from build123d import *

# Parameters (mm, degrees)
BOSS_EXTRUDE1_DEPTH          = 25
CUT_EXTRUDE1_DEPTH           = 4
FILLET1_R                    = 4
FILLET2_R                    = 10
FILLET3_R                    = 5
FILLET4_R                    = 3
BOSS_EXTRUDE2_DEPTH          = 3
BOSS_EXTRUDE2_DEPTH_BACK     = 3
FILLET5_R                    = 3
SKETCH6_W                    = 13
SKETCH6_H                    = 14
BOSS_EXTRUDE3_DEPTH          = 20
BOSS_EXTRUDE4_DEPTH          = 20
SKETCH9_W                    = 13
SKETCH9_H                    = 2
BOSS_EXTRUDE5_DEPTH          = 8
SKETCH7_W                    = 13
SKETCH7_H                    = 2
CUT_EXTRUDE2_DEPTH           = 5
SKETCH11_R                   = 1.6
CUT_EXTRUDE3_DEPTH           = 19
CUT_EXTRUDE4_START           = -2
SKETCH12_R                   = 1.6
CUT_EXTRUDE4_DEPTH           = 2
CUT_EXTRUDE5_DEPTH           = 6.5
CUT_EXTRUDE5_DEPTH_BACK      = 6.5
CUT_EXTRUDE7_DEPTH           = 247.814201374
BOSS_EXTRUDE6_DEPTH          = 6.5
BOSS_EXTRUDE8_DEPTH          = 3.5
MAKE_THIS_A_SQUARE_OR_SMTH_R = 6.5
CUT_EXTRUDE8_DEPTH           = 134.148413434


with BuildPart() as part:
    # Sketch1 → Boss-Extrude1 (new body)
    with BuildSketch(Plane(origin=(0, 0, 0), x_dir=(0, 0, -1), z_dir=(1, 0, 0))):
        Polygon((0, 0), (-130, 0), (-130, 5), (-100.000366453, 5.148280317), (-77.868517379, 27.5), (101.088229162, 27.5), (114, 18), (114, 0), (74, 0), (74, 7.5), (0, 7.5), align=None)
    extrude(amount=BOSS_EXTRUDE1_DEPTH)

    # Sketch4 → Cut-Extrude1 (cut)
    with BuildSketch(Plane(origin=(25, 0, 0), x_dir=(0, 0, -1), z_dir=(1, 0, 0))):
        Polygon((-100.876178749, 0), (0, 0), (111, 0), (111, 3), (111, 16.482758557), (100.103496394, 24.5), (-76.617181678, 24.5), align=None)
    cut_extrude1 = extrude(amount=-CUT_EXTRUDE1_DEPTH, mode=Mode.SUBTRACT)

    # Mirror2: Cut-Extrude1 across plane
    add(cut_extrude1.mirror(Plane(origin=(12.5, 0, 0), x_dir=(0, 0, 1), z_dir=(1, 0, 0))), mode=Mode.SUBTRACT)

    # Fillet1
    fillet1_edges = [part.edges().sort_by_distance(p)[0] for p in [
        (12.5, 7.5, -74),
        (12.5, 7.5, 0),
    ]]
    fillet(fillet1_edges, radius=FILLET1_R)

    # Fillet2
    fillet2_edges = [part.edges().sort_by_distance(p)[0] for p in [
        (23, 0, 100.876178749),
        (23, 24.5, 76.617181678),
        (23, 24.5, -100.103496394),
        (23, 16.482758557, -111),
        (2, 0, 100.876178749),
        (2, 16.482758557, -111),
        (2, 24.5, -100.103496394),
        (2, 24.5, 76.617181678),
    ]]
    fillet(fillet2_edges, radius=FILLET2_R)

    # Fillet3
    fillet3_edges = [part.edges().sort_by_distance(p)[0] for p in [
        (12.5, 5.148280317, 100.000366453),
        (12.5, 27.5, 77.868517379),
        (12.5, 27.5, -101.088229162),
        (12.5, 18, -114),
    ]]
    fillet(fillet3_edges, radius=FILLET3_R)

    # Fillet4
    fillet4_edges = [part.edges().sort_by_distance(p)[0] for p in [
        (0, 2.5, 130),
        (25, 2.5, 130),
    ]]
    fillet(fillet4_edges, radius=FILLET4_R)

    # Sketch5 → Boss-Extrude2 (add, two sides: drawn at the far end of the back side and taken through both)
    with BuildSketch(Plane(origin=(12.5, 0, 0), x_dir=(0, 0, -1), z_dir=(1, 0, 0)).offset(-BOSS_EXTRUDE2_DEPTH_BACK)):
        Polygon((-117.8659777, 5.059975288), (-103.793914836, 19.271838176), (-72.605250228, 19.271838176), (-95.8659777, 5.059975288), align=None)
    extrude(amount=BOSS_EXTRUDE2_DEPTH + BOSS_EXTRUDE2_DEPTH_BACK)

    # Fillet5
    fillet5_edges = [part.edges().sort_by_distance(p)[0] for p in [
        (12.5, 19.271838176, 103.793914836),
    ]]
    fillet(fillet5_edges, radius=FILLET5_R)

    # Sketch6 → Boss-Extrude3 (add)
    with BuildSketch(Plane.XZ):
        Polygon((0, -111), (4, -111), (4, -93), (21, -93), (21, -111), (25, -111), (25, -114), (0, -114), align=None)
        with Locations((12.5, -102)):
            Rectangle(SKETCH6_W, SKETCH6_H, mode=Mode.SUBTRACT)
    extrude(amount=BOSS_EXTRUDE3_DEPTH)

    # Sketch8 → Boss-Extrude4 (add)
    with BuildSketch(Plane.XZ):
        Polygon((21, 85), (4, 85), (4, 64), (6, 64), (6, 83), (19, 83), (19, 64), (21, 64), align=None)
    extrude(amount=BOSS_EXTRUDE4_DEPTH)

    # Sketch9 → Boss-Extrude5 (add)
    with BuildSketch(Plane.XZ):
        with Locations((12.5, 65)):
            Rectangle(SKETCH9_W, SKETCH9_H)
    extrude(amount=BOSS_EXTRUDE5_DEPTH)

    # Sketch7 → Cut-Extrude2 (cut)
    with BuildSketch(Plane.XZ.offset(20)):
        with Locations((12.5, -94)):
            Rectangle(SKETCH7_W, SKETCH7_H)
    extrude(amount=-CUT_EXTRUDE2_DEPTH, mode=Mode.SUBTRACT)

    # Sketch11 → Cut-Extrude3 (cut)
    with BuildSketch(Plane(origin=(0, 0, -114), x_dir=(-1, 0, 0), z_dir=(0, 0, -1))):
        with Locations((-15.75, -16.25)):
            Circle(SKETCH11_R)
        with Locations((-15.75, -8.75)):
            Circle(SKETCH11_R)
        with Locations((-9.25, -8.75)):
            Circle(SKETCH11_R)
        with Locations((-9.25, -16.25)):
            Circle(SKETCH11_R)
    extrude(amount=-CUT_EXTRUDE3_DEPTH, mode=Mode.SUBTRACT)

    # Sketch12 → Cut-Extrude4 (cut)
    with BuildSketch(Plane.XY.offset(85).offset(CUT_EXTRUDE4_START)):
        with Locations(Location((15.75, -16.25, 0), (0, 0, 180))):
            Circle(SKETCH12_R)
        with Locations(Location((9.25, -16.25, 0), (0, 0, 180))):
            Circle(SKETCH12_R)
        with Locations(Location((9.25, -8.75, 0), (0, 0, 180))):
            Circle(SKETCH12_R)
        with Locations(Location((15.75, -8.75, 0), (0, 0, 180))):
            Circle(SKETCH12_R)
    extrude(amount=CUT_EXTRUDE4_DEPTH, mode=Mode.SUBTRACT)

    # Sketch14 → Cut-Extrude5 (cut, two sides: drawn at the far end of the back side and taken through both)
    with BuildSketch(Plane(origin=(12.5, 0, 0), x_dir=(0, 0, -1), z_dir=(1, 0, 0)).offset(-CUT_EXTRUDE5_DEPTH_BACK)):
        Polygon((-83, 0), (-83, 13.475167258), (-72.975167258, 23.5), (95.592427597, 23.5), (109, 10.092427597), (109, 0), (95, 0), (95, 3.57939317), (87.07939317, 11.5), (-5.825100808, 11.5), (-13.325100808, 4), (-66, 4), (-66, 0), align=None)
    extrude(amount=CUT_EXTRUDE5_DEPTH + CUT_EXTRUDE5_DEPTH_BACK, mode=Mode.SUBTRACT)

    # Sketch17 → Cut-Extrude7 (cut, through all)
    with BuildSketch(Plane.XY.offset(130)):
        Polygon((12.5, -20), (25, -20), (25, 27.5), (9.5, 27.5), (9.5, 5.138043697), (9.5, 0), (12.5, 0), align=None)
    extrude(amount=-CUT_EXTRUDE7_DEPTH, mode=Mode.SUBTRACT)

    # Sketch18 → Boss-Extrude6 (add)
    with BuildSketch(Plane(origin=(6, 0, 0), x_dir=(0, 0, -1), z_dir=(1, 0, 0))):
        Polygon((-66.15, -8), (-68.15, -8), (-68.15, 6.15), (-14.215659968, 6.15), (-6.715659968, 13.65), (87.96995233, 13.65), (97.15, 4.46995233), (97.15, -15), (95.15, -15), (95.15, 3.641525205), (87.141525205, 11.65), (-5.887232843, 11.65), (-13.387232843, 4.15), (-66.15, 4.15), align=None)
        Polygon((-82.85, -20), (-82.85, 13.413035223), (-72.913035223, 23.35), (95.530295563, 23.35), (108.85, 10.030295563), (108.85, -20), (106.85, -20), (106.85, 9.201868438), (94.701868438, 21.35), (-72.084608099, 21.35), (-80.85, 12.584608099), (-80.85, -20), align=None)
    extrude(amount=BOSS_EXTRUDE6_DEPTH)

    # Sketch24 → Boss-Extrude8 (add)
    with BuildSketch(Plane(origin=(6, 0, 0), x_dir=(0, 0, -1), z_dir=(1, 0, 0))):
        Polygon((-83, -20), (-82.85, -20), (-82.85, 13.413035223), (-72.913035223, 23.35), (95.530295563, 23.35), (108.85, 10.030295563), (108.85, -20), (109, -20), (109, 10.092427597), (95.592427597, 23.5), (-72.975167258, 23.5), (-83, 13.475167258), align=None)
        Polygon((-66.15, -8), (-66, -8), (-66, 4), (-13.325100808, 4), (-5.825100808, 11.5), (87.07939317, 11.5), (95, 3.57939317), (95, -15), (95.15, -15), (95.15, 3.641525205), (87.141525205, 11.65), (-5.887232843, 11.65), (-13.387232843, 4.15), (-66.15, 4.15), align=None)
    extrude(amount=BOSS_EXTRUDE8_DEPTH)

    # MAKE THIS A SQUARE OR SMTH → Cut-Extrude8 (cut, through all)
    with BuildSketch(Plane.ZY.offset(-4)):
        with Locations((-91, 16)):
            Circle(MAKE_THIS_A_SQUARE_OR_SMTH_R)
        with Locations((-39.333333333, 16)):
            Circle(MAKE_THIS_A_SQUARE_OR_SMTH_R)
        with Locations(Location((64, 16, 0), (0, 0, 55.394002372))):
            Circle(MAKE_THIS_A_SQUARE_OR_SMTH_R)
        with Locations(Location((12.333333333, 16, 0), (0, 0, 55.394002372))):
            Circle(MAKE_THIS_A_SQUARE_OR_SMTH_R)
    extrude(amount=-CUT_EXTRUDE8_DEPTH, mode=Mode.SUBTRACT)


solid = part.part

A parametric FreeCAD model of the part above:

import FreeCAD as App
import Part
import Sketcher
from FreeCAD import Vector
Q = App.Units.Quantity


def edges_at(feature, points):
    """Names of the edges that pass closest to the given points."""
    edges = feature.Shape.Edges
    near = lambda p: min(range(len(edges)), key=lambda i: edges[i].distToShape(Part.Vertex(*p))[0])
    return sorted({f"Edge{near(p) + 1}" for p in points})

doc = App.newDocument("Part")
body = doc.addObject("PartDesign::Body", "Body")

# Sketch on YZ plane
sketch1 = body.newObject("Sketcher::SketchObject", "Sketch")
sketch1.AttachmentSupport = (doc.getObject("YZ_Plane"), [""])
sketch1.MapMode = "FlatFace"
sketch1.addGeometry([
    Part.LineSegment(Vector(0, 130, 0), Vector(0, 0, 0)),  # 0
    Part.LineSegment(Vector(0, 0, 0), Vector(8, 0, 0)),  # 1
    Part.LineSegment(Vector(8, 0, 0), Vector(8, -74, 0)),  # 2
    Part.LineSegment(Vector(8, -74, 0), Vector(0, -74, 0)),  # 3
    Part.LineSegment(Vector(0, -74, 0), Vector(0, -114, 0)),  # 4
    Part.LineSegment(Vector(0, -114, 0), Vector(18, -114, 0)),  # 5
    Part.LineSegment(Vector(18, -114, 0), Vector(28, -101, 0)),  # 6
    Part.LineSegment(Vector(28, -101, 0), Vector(28, 78, 0)),  # 7
    Part.LineSegment(Vector(28, 78, 0), Vector(5, 100, 0)),  # 8
    Part.LineSegment(Vector(5, 100, 0), Vector(5, 130, 0)),  # 9
    Part.LineSegment(Vector(5, 130, 0), Vector(0, 130, 0)),  # 10
], False)
sketch1.addConstraint([
    Sketcher.Constraint("Coincident", 0, 2, 1, 1),
    Sketcher.Constraint("Coincident", 1, 2, 2, 1),
    Sketcher.Constraint("Coincident", 2, 2, 3, 1),
    Sketcher.Constraint("Coincident", 3, 2, 4, 1),
    Sketcher.Constraint("Coincident", 4, 2, 5, 1),
    Sketcher.Constraint("Coincident", 5, 2, 6, 1),
    Sketcher.Constraint("Coincident", 6, 2, 7, 1),
    Sketcher.Constraint("Coincident", 7, 2, 8, 1),
    Sketcher.Constraint("Coincident", 8, 2, 9, 1),
    Sketcher.Constraint("Coincident", 9, 2, 10, 1),
    Sketcher.Constraint("Coincident", 10, 2, 0, 1),
    Sketcher.Constraint("Vertical", 0),
    Sketcher.Constraint("Horizontal", 1),
    Sketcher.Constraint("Vertical", 2),
    Sketcher.Constraint("Horizontal", 3),
    Sketcher.Constraint("Vertical", 4),
    Sketcher.Constraint("Horizontal", 5),
    Sketcher.Constraint("Vertical", 7),
    Sketcher.Constraint("Horizontal", 10),
    Sketcher.Constraint("Coincident", 0, 2, -1, 1),
    Sketcher.Constraint("PointOnObject", 3, 2, -2),
    Sketcher.Constraint("DistanceX", 5, 1, 5, 2, Q("18 mm")),
    Sketcher.Constraint("DistanceX", 10, 2, 10, 1, Q("5 mm")),
    Sketcher.Constraint("DistanceY", 0, 2, 0, 1, Q("130 mm")),
    Sketcher.Constraint("DistanceY", 2, 2, 2, 1, Q("74 mm")),
    Sketcher.Constraint("DistanceY", 4, 2, 4, 1, Q("40 mm")),
    Sketcher.Constraint("Distance", 9, Q("30 mm")),
    Sketcher.Constraint("DistanceX", 1, 1, 1, 2, Q("7.5 mm")),
    Sketcher.Constraint("DistanceX", 2, 2, 6, 2, Q("20 mm")),
    Sketcher.Constraint("Distance", 6, Q("16.030091 mm")),
    Sketcher.Constraint("DistanceY", 7, 1, 7, 2, Q("178.956747 mm")),
    Sketcher.Constraint("DistanceX", -1, 1, 8, 2, Q("5.14828 mm")),
])
pad1 = body.newObject("PartDesign::Pad", "Pad")
pad1.Profile = sketch1
pad1.Length = 25

# Sketch on YZ plane
sketch2 = body.newObject("Sketcher::SketchObject", "Sketch001")
sketch2.AttachmentSupport = (doc.getObject("YZ_Plane"), [""])
sketch2.MapMode = "FlatFace"
sketch2.AttachmentOffset = App.Placement(Vector(0, 0, 25), App.Rotation())
sketch2.addGeometry([
    Part.LineSegment(Vector(0, 101, 0), Vector(0, -111, 0)),  # 0
    Part.LineSegment(Vector(0, -111, 0), Vector(16, -111, 0)),  # 1
    Part.LineSegment(Vector(16, -111, 0), Vector(24, -100, 0)),  # 2
    Part.LineSegment(Vector(24, -100, 0), Vector(24, 77, 0)),  # 3
    Part.LineSegment(Vector(24, 77, 0), Vector(0, 101, 0)),  # 4
], False)
sketch2.addConstraint([
    Sketcher.Constraint("Coincident", 0, 2, 1, 1),
    Sketcher.Constraint("Coincident", 1, 2, 2, 1),
    Sketcher.Constraint("Coincident", 2, 2, 3, 1),
    Sketcher.Constraint("Coincident", 3, 2, 4, 1),
    Sketcher.Constraint("Coincident", 4, 2, 0, 1),
    Sketcher.Constraint("Vertical", 0),
    Sketcher.Constraint("Horizontal", 1),
    Sketcher.Constraint("Vertical", 3),
    Sketcher.Constraint("PointOnObject", 0, 2, -2),
    Sketcher.Constraint("DistanceY", 0, 2, -1, 1, Q("111 mm")),
    Sketcher.Constraint("DistanceX", -1, 1, 2, 2, Q("24.5 mm")),
    Sketcher.Constraint("DistanceX", 1, 1, 1, 2, Q("16.482759 mm")),
    Sketcher.Constraint("DistanceY", 0, 2, 0, 1, Q("211.876179 mm")),
    Sketcher.Constraint("DistanceY", 3, 1, 3, 2, Q("176.720678 mm")),
    Sketcher.Constraint("Distance", 4, Q("34.478239 mm")),
])
pocket1 = body.newObject("PartDesign::Pocket", "Pocket")
pocket1.Profile = sketch2
pocket1.Length = 4
doc.recompute()

datumplane = body.newObject("PartDesign::Plane", "DatumPlane")
datumplane.AttachmentSupport = (doc.getObject("YZ_Plane"), [""])
datumplane.MapMode = "FlatFace"
datumplane.AttachmentOffset = App.Placement(Vector(0, 0, 12.5), App.Rotation())
mirrored = body.newObject("PartDesign::Mirrored", "Mirrored")
mirrored.Originals = [pocket1]
mirrored.MirrorPlane = (datumplane, [""])
body.Tip = mirrored
doc.recompute()

fillet = body.newObject("PartDesign::Fillet", "Fillet")
fillet.Base = (mirrored, edges_at(mirrored, [(12.5, 7.5, -74), (12.5, 7.5, 0)]))
fillet.Radius = 4
doc.recompute()

fillet2 = body.newObject("PartDesign::Fillet", "Fillet001")
fillet2.Base = (fillet, edges_at(fillet, [
    (23, 0, 100.876),
    (23, 24.5, 76.617),
    (23, 24.5, -100.103),
    (23, 16.483, -111),
    (2, 0, 100.876),
    (2, 16.483, -111),
    (2, 24.5, -100.103),
    (2, 24.5, 76.617),
]))
fillet2.Radius = 10
doc.recompute()

fillet3 = body.newObject("PartDesign::Fillet", "Fillet002")
fillet3.Base = (fillet2, edges_at(fillet2, [
    (12.5, 5.148, 100),
    (12.5, 27.5, 77.869),
    (12.5, 27.5, -101.088),
    (12.5, 18, -114),
]))
fillet3.Radius = 5
doc.recompute()

fillet4 = body.newObject("PartDesign::Fillet", "Fillet003")
fillet4.Base = (fillet3, edges_at(fillet3, [(0, 2.5, 130), (25, 2.5, 130)]))
fillet4.Radius = 3

# Sketch on YZ plane
sketch3 = body.newObject("Sketcher::SketchObject", "Sketch002")
sketch3.AttachmentSupport = (doc.getObject("YZ_Plane"), [""])
sketch3.MapMode = "FlatFace"
sketch3.AttachmentOffset = App.Placement(Vector(0, 0, 12.5), App.Rotation())
sketch3.addGeometry([
    Part.LineSegment(Vector(19, 104, 0), Vector(5, 118, 0)),
    Part.LineSegment(Vector(5, 118, 0), Vector(5, 96, 0)),
    Part.LineSegment(Vector(5, 96, 0), Vector(19, 73, 0)),
    Part.LineSegment(Vector(19, 73, 0), Vector(19, 104, 0)),
], False)
sketch3.addConstraint([
    Sketcher.Constraint("Coincident", 0, 2, 1, 1),
    Sketcher.Constraint("Coincident", 1, 2, 2, 1),
    Sketcher.Constraint("Coincident", 2, 2, 3, 1),
    Sketcher.Constraint("Coincident", 3, 2, 0, 1),
    Sketcher.Constraint("Vertical", 1),
    Sketcher.Constraint("Vertical", 3),
    Sketcher.Constraint("DistanceY", 1, 2, 1, 1, Q("22 mm")),
    Sketcher.Constraint("Distance", 0, Q("20 mm")),
    Sketcher.Constraint("DistanceY", 3, 1, 3, 2, Q("31.188665 mm")),
    Sketcher.Constraint("DistanceX", -1, 1, 2, 2, Q("19.271838 mm")),
    Sketcher.Constraint("DistanceY", -1, 1, 2, 2, Q("72.60525 mm")),
    Sketcher.Constraint("Distance", 2, Q("27.258732 mm")),
])
pad2 = body.newObject("PartDesign::Pad", "Pad001")
pad2.Profile = sketch3
pad2.Type = "TwoLengths"
pad2.Length = 3
pad2.Length2 = 3
doc.recompute()

fillet5 = body.newObject("PartDesign::Fillet", "Fillet004")
fillet5.Base = (pad2, edges_at(pad2, [(12.5, 19.272, 103.794)]))
fillet5.Radius = 3

# Sketch on XZ plane
sketch4 = body.newObject("Sketcher::SketchObject", "Sketch003")
sketch4.AttachmentSupport = (doc.getObject("XZ_Plane"), [""])
sketch4.MapMode = "FlatFace"
sketch4.addGeometry([
    Part.LineSegment(Vector(4, -111, 0), Vector(0, -111, 0)),  # 0
    Part.LineSegment(Vector(0, -111, 0), Vector(0, -114, 0)),  # 1
    Part.LineSegment(Vector(0, -114, 0), Vector(25, -114, 0)),  # 2
    Part.LineSegment(Vector(25, -114, 0), Vector(25, -111, 0)),  # 3
    Part.LineSegment(Vector(25, -111, 0), Vector(21, -111, 0)),  # 4
    Part.LineSegment(Vector(21, -111, 0), Vector(21, -93, 0)),  # 5
    Part.LineSegment(Vector(21, -93, 0), Vector(4, -93, 0)),  # 6
    Part.LineSegment(Vector(4, -93, 0), Vector(4, -111, 0)),  # 7
    Part.LineSegment(Vector(6, -109, 0), Vector(6, -95, 0)),  # 8
    Part.LineSegment(Vector(6, -95, 0), Vector(19, -95, 0)),  # 9
    Part.LineSegment(Vector(19, -95, 0), Vector(19, -109, 0)),  # 10
    Part.LineSegment(Vector(19, -109, 0), Vector(6, -109, 0)),  # 11
], False)
sketch4.addConstraint([
    Sketcher.Constraint("Coincident", 0, 2, 1, 1),
    Sketcher.Constraint("Coincident", 1, 2, 2, 1),
    Sketcher.Constraint("Coincident", 2, 2, 3, 1),
    Sketcher.Constraint("Coincident", 3, 2, 4, 1),
    Sketcher.Constraint("Coincident", 4, 2, 5, 1),
    Sketcher.Constraint("Coincident", 5, 2, 6, 1),
    Sketcher.Constraint("Coincident", 6, 2, 7, 1),
    Sketcher.Constraint("Coincident", 7, 2, 0, 1),
    Sketcher.Constraint("Coincident", 8, 2, 9, 1),
    Sketcher.Constraint("Coincident", 9, 2, 10, 1),
    Sketcher.Constraint("Coincident", 10, 2, 11, 1),
    Sketcher.Constraint("Coincident", 11, 2, 8, 1),
    Sketcher.Constraint("Horizontal", 0),
    Sketcher.Constraint("Vertical", 1),
    Sketcher.Constraint("Horizontal", 2),
    Sketcher.Constraint("Vertical", 3),
    Sketcher.Constraint("Horizontal", 4),
    Sketcher.Constraint("Vertical", 5),
    Sketcher.Constraint("Horizontal", 6),
    Sketcher.Constraint("Vertical", 7),
    Sketcher.Constraint("Vertical", 8),
    Sketcher.Constraint("Horizontal", 9),
    Sketcher.Constraint("Vertical", 10),
    Sketcher.Constraint("Horizontal", 11),
    Sketcher.Constraint("PointOnObject", 0, 2, -2),
    Sketcher.Constraint("Horizontal", 0, 2, 3, 2),
    Sketcher.Constraint("Equal", 0, 4),
    Sketcher.Constraint("DistanceX", 0, 2, 0, 1, Q("4 mm")),
    Sketcher.Constraint("DistanceX", 2, 1, 2, 2, Q("25 mm")),
    Sketcher.Constraint("DistanceX", 9, 1, 9, 2, Q("13 mm")),
    Sketcher.Constraint("DistanceY", 1, 2, 1, 1, Q("3 mm")),
    Sketcher.Constraint("DistanceY", 5, 1, 5, 2, Q("18 mm")),
    Sketcher.Constraint("DistanceY", 8, 1, 8, 2, Q("14 mm")),
    Sketcher.Constraint("DistanceY", 0, 2, -1, 1, Q("111 mm")),
    Sketcher.Constraint("DistanceX", -1, 1, 8, 2, Q("6 mm")),
    Sketcher.Constraint("DistanceY", 8, 2, -1, 1, Q("95 mm")),
])
pad3 = body.newObject("PartDesign::Pad", "Pad002")
pad3.Profile = sketch4
pad3.Length = 20

# Sketch on XZ plane
sketch5 = body.newObject("Sketcher::SketchObject", "Sketch004")
sketch5.AttachmentSupport = (doc.getObject("XZ_Plane"), [""])
sketch5.MapMode = "FlatFace"
sketch5.addGeometry([
    Part.LineSegment(Vector(21, 85, 0), Vector(4, 85, 0)),  # 0
    Part.LineSegment(Vector(4, 85, 0), Vector(4, 64, 0)),  # 1
    Part.LineSegment(Vector(4, 64, 0), Vector(6, 64, 0)),  # 2
    Part.LineSegment(Vector(6, 64, 0), Vector(6, 83, 0)),  # 3
    Part.LineSegment(Vector(6, 83, 0), Vector(19, 83, 0)),  # 4
    Part.LineSegment(Vector(19, 83, 0), Vector(19, 64, 0)),  # 5
    Part.LineSegment(Vector(19, 64, 0), Vector(21, 64, 0)),  # 6
    Part.LineSegment(Vector(21, 64, 0), Vector(21, 85, 0)),  # 7
], False)
sketch5.addConstraint([
    Sketcher.Constraint("Coincident", 0, 2, 1, 1),
    Sketcher.Constraint("Coincident", 1, 2, 2, 1),
    Sketcher.Constraint("Coincident", 2, 2, 3, 1),
    Sketcher.Constraint("Coincident", 3, 2, 4, 1),
    Sketcher.Constraint("Coincident", 4, 2, 5, 1),
    Sketcher.Constraint("Coincident", 5, 2, 6, 1),
    Sketcher.Constraint("Coincident", 6, 2, 7, 1),
    Sketcher.Constraint("Coincident", 7, 2, 0, 1),
    Sketcher.Constraint("Horizontal", 0),
    Sketcher.Constraint("Vertical", 1),
    Sketcher.Constraint("Horizontal", 2),
    Sketcher.Constraint("Vertical", 3),
    Sketcher.Constraint("Horizontal", 4),
    Sketcher.Constraint("Vertical", 5),
    Sketcher.Constraint("Horizontal", 6),
    Sketcher.Constraint("Vertical", 7),
    Sketcher.Constraint("Horizontal", 2, 2, 5, 2),
    Sketcher.Constraint("Equal", 2, 6),
    Sketcher.Constraint("DistanceX", 0, 2, 0, 1, Q("17 mm")),
    Sketcher.Constraint("DistanceX", 2, 1, 2, 2, Q("2 mm")),
    Sketcher.Constraint("DistanceY", 1, 2, 1, 1, Q("21 mm")),
    Sketcher.Constraint("DistanceY", 3, 1, 3, 2, Q("19 mm")),
    Sketcher.Constraint("DistanceX", -1, 1, 0, 2, Q("4 mm")),
    Sketcher.Constraint("DistanceY", -1, 1, 0, 2, Q("85 mm")),
])
pad4 = body.newObject("PartDesign::Pad", "Pad003")
pad4.Profile = sketch5
pad4.Length = 20

# Sketch on XZ plane
sketch6 = body.newObject("Sketcher::SketchObject", "Sketch005")
sketch6.AttachmentSupport = (doc.getObject("XZ_Plane"), [""])
sketch6.MapMode = "FlatFace"
sketch6.addGeometry([
    Part.LineSegment(Vector(6, 66, 0), Vector(6, 64, 0)),
    Part.LineSegment(Vector(6, 64, 0), Vector(19, 64, 0)),
    Part.LineSegment(Vector(19, 64, 0), Vector(19, 66, 0)),
    Part.LineSegment(Vector(19, 66, 0), Vector(6, 66, 0)),
], False)
sketch6.addConstraint([
    Sketcher.Constraint("Coincident", 0, 2, 1, 1),
    Sketcher.Constraint("Coincident", 1, 2, 2, 1),
    Sketcher.Constraint("Coincident", 2, 2, 3, 1),
    Sketcher.Constraint("Coincident", 3, 2, 0, 1),
    Sketcher.Constraint("Vertical", 0),
    Sketcher.Constraint("Horizontal", 1),
    Sketcher.Constraint("Vertical", 2),
    Sketcher.Constraint("Horizontal", 3),
    Sketcher.Constraint("DistanceX", 1, 1, 1, 2, Q("13 mm")),
    Sketcher.Constraint("DistanceY", 0, 2, 0, 1, Q("2 mm")),
    Sketcher.Constraint("DistanceX", -1, 1, 0, 2, Q("6 mm")),
    Sketcher.Constraint("DistanceY", -1, 1, 0, 2, Q("64 mm")),
])
pad5 = body.newObject("PartDesign::Pad", "Pad004")
pad5.Profile = sketch6
pad5.Length = 8

# Sketch on XZ plane
sketch7 = body.newObject("Sketcher::SketchObject", "Sketch006")
sketch7.AttachmentSupport = (doc.getObject("XZ_Plane"), [""])
sketch7.MapMode = "FlatFace"
sketch7.AttachmentOffset = App.Placement(Vector(0, 0, 20), App.Rotation())
sketch7.addGeometry([
    Part.LineSegment(Vector(6, -93, 0), Vector(6, -95, 0)),
    Part.LineSegment(Vector(6, -95, 0), Vector(19, -95, 0)),
    Part.LineSegment(Vector(19, -95, 0), Vector(19, -93, 0)),
    Part.LineSegment(Vector(19, -93, 0), Vector(6, -93, 0)),
], False)
sketch7.addConstraint([
    Sketcher.Constraint("Coincident", 0, 2, 1, 1),
    Sketcher.Constraint("Coincident", 1, 2, 2, 1),
    Sketcher.Constraint("Coincident", 2, 2, 3, 1),
    Sketcher.Constraint("Coincident", 3, 2, 0, 1),
    Sketcher.Constraint("Vertical", 0),
    Sketcher.Constraint("Horizontal", 1),
    Sketcher.Constraint("Vertical", 2),
    Sketcher.Constraint("Horizontal", 3),
    Sketcher.Constraint("DistanceX", 1, 1, 1, 2, Q("13 mm")),
    Sketcher.Constraint("DistanceY", 0, 2, 0, 1, Q("2 mm")),
    Sketcher.Constraint("DistanceX", -1, 1, 0, 2, Q("6 mm")),
    Sketcher.Constraint("DistanceY", 0, 2, -1, 1, Q("95 mm")),
])
pocket2 = body.newObject("PartDesign::Pocket", "Pocket001")
pocket2.Profile = sketch7
pocket2.Length = 5

# Sketch on XY plane
sketch8 = body.newObject("Sketcher::SketchObject", "Sketch007")
sketch8.AttachmentSupport = (doc.getObject("XY_Plane"), [""])
sketch8.MapMode = "FlatFace"
sketch8.AttachmentOffset = App.Placement(Vector(0, 0, -114), App.Rotation())
sketch8.addGeometry([
    Part.Circle(Vector(15.8, -16.2, 0), Vector(0, 0, 1), 1.6),
    Part.Circle(Vector(15.8, -8.8, 0), Vector(0, 0, 1), 1.6),
    Part.Circle(Vector(9.2, -8.8, 0), Vector(0, 0, 1), 1.6),
    Part.Circle(Vector(9.2, -16.2, 0), Vector(0, 0, 1), 1.6),
], False)
sketch8.addConstraint([
    Sketcher.Constraint("Equal", 0, 1),
    Sketcher.Constraint("Equal", 1, 2),
    Sketcher.Constraint("Equal", 2, 3),
    Sketcher.Constraint("Horizontal", 1, 3, 2, 3),
    Sketcher.Constraint("Horizontal", 0, 3, 3, 3),
    Sketcher.Constraint("Vertical", 0, 3, 1, 3),
    Sketcher.Constraint("Vertical", 2, 3, 3, 3),
    Sketcher.Constraint("Diameter", 0, Q("3.2 mm")),
    Sketcher.Constraint("DistanceY", 0, 3, 1, 3, Q("7.5 mm")),
    Sketcher.Constraint("DistanceX", 2, 3, 1, 3, Q("6.5 mm")),
    Sketcher.Constraint("DistanceX", -1, 1, 0, 3, Q("15.75 mm")),
    Sketcher.Constraint("DistanceY", 0, 3, -1, 1, Q("16.25 mm")),
])
pocket3 = body.newObject("PartDesign::Pocket", "Pocket002")
pocket3.Profile = sketch8
pocket3.Length = 19
pocket3.Reversed = True

# Sketch on XY plane
sketch9 = body.newObject("Sketcher::SketchObject", "Sketch008")
sketch9.AttachmentSupport = (doc.getObject("XY_Plane"), [""])
sketch9.MapMode = "FlatFace"
sketch9.AttachmentOffset = App.Placement(Vector(0, 0, 83), App.Rotation())
sketch9.addGeometry([
    Part.Circle(Vector(15.8, -16.2, 0), Vector(0, 0, 1), 1.6),
    Part.Circle(Vector(9.2, -16.2, 0), Vector(0, 0, 1), 1.6),
    Part.Circle(Vector(9.2, -8.8, 0), Vector(0, 0, 1), 1.6),
    Part.Circle(Vector(15.8, -8.8, 0), Vector(0, 0, 1), 1.6),
], False)
sketch9.addConstraint([
    Sketcher.Constraint("Equal", 0, 1),
    Sketcher.Constraint("Equal", 1, 2),
    Sketcher.Constraint("Equal", 2, 3),
    Sketcher.Constraint("Horizontal", 0, 3, 1, 3),
    Sketcher.Constraint("Horizontal", 2, 3, 3, 3),
    Sketcher.Constraint("Vertical", 1, 3, 2, 3),
    Sketcher.Constraint("Vertical", 0, 3, 3, 3),
    Sketcher.Constraint("Diameter", 0, Q("3.2 mm")),
    Sketcher.Constraint("DistanceX", 1, 3, 0, 3, Q("6.5 mm")),
    Sketcher.Constraint("DistanceY", 1, 3, 2, 3, Q("7.5 mm")),
    Sketcher.Constraint("DistanceX", -1, 1, 0, 3, Q("15.75 mm")),
    Sketcher.Constraint("DistanceY", 0, 3, -1, 1, Q("16.25 mm")),
])
pocket4 = body.newObject("PartDesign::Pocket", "Pocket003")
pocket4.Profile = sketch9
pocket4.Length = 2
pocket4.Reversed = True

# Sketch on YZ plane
sketch10 = body.newObject("Sketcher::SketchObject", "Sketch009")
sketch10.AttachmentSupport = (doc.getObject("YZ_Plane"), [""])
sketch10.MapMode = "FlatFace"
sketch10.AttachmentOffset = App.Placement(Vector(0, 0, 12.5), App.Rotation())
sketch10.addGeometry([
    Part.LineSegment(Vector(13.5, 83, 0), Vector(0, 83, 0)),  # 0
    Part.LineSegment(Vector(0, 83, 0), Vector(0, 66, 0)),  # 1
    Part.LineSegment(Vector(0, 66, 0), Vector(4, 66, 0)),  # 2
    Part.LineSegment(Vector(4, 66, 0), Vector(4, 13.3, 0)),  # 3
    Part.LineSegment(Vector(4, 13.3, 0), Vector(11.5, 5.8, 0)),  # 4
    Part.LineSegment(Vector(11.5, 5.8, 0), Vector(11.5, -87.1, 0)),  # 5
    Part.LineSegment(Vector(11.5, -87.1, 0), Vector(3.6, -95, 0)),  # 6
    Part.LineSegment(Vector(3.6, -95, 0), Vector(0, -95, 0)),  # 7
    Part.LineSegment(Vector(0, -95, 0), Vector(0, -109, 0)),  # 8
    Part.LineSegment(Vector(0, -109, 0), Vector(10.1, -109, 0)),  # 9
    Part.LineSegment(Vector(10.1, -109, 0), Vector(23.5, -95.6, 0)),  # 10
    Part.LineSegment(Vector(23.5, -95.6, 0), Vector(23.5, 73, 0)),  # 11
    Part.LineSegment(Vector(23.5, 73, 0), Vector(13.5, 83, 0)),  # 12
], False)
sketch10.addConstraint([
    Sketcher.Constraint("Coincident", 0, 2, 1, 1),
    Sketcher.Constraint("Coincident", 1, 2, 2, 1),
    Sketcher.Constraint("Coincident", 2, 2, 3, 1),
    Sketcher.Constraint("Coincident", 3, 2, 4, 1),
    Sketcher.Constraint("Coincident", 4, 2, 5, 1),
    Sketcher.Constraint("Coincident", 5, 2, 6, 1),
    Sketcher.Constraint("Coincident", 6, 2, 7, 1),
    Sketcher.Constraint("Coincident", 7, 2, 8, 1),
    Sketcher.Constraint("Coincident", 8, 2, 9, 1),
    Sketcher.Constraint("Coincident", 9, 2, 10, 1),
    Sketcher.Constraint("Coincident", 10, 2, 11, 1),
    Sketcher.Constraint("Coincident", 11, 2, 12, 1),
    Sketcher.Constraint("Coincident", 12, 2, 0, 1),
    Sketcher.Constraint("Horizontal", 0),
    Sketcher.Constraint("Vertical", 1),
    Sketcher.Constraint("Horizontal", 2),
    Sketcher.Constraint("Vertical", 3),
    Sketcher.Constraint("Vertical", 5),
    Sketcher.Constraint("Horizontal", 7),
    Sketcher.Constraint("Vertical", 8),
    Sketcher.Constraint("Horizontal", 9),
    Sketcher.Constraint("Vertical", 11),
    Sketcher.Constraint("PointOnObject", 0, 2, -2),
    Sketcher.Constraint("PointOnObject", 7, 2, -2),
    Sketcher.Constraint("Perpendicular", 4, 6),
    Sketcher.Constraint("Parallel", 6, 10),
    Sketcher.Constraint("Perpendicular", 10, 12),
    Sketcher.Constraint("DistanceX", 2, 1, 2, 2, Q("4 mm")),
    Sketcher.Constraint("DistanceY", 1, 2, 1, 1, Q("17 mm")),
    Sketcher.Constraint("DistanceY", 8, 2, 8, 1, Q("14 mm")),
    Sketcher.Constraint("Angle", 4, Q("-45 deg")),
    Sketcher.Constraint("DistanceY", -1, 1, 0, 2, Q("83 mm")),
    Sketcher.Constraint("DistanceY", 6, 2, -1, 1, Q("95 mm")),
    Sketcher.Constraint("DistanceX", 5, 2, 10, 2, Q("12 mm")),
    Sketcher.Constraint("DistanceX", -1, 1, 4, 2, Q("11.5 mm")),
    Sketcher.Constraint("DistanceY", 3, 2, 3, 1, Q("52.674899 mm")),
    Sketcher.Constraint("Distance", 6, Q("11.20143 mm")),
    Sketcher.Constraint("Distance", 10, Q("18.961171 mm")),
    Sketcher.Constraint("DistanceX", 0, 2, 0, 1, Q("13.475167 mm")),
])
pocket5 = body.newObject("PartDesign::Pocket", "Pocket004")
pocket5.Profile = sketch10
pocket5.Type = "TwoLengths"
pocket5.Length = 6.5
pocket5.Length2 = 6.5
pocket5.Reversed = True

# Sketch on XY plane
sketch11 = body.newObject("Sketcher::SketchObject", "Sketch010")
sketch11.AttachmentSupport = (doc.getObject("XY_Plane"), [""])
sketch11.MapMode = "FlatFace"
sketch11.AttachmentOffset = App.Placement(Vector(0, 0, 130), App.Rotation())
sketch11.addGeometry([
    Part.LineSegment(Vector(12.5, -20, 0), Vector(25, -20, 0)),  # 0
    Part.LineSegment(Vector(25, -20, 0), Vector(25, 27.5, 0)),  # 1
    Part.LineSegment(Vector(25, 27.5, 0), Vector(9.5, 27.5, 0)),  # 2
    Part.LineSegment(Vector(9.5, 27.5, 0), Vector(9.5, 0, 0)),  # 3
    Part.LineSegment(Vector(9.5, 0, 0), Vector(12.5, 0, 0)),  # 4
    Part.LineSegment(Vector(12.5, 0, 0), Vector(12.5, -20, 0)),  # 5
], False)
sketch11.addConstraint([
    Sketcher.Constraint("Coincident", 0, 2, 1, 1),
    Sketcher.Constraint("Coincident", 1, 2, 2, 1),
    Sketcher.Constraint("Coincident", 2, 2, 3, 1),
    Sketcher.Constraint("Coincident", 3, 2, 4, 1),
    Sketcher.Constraint("Coincident", 4, 2, 5, 1),
    Sketcher.Constraint("Coincident", 5, 2, 0, 1),
    Sketcher.Constraint("Horizontal", 0),
    Sketcher.Constraint("Vertical", 1),
    Sketcher.Constraint("Horizontal", 2),
    Sketcher.Constraint("Vertical", 3),
    Sketcher.Constraint("Horizontal", 4),
    Sketcher.Constraint("Vertical", 5),
    Sketcher.Constraint("PointOnObject", 3, 2, -1),
    Sketcher.Constraint("DistanceX", 4, 1, 4, 2, Q("3 mm")),
    Sketcher.Constraint("DistanceY", 5, 2, 5, 1, Q("20 mm")),
    Sketcher.Constraint("DistanceX", 0, 1, 0, 2, Q("12.5 mm")),
    Sketcher.Constraint("DistanceY", 1, 1, 1, 2, Q("47.5 mm")),
    Sketcher.Constraint("DistanceX", -1, 1, 0, 2, Q("25 mm")),
])
pocket6 = body.newObject("PartDesign::Pocket", "Pocket005")
pocket6.Profile = sketch11
pocket6.Type = "ThroughAll"

# Sketch on YZ plane
sketch12 = body.newObject("Sketcher::SketchObject", "Sketch011")
sketch12.AttachmentSupport = (doc.getObject("YZ_Plane"), [""])
sketch12.MapMode = "FlatFace"
sketch12.AttachmentOffset = App.Placement(Vector(0, 0, 6), App.Rotation())
sketch12.addGeometry([
    Part.LineSegment(Vector(-8, 68.2, 0), Vector(-8, 66.2, 0)),  # 0
    Part.LineSegment(Vector(-8, 66.2, 0), Vector(4.2, 66.2, 0)),  # 1
    Part.LineSegment(Vector(4.2, 66.2, 0), Vector(4.2, 13.4, 0)),  # 2
    Part.LineSegment(Vector(4.2, 13.4, 0), Vector(11.7, 5.9, 0)),  # 3
    Part.LineSegment(Vector(11.7, 5.9, 0), Vector(11.7, -87.1, 0)),  # 4
    Part.LineSegment(Vector(11.7, -87.1, 0), Vector(3.6, -95.2, 0)),  # 5
    Part.LineSegment(Vector(3.6, -95.2, 0), Vector(-15, -95.2, 0)),  # 6
    Part.LineSegment(Vector(-15, -95.2, 0), Vector(-15, -97.2, 0)),  # 7
    Part.LineSegment(Vector(-15, -97.2, 0), Vector(4.5, -97.2, 0)),  # 8
    Part.LineSegment(Vector(4.5, -97.2, 0), Vector(13.7, -88, 0)),  # 9
    Part.LineSegment(Vector(13.7, -88, 0), Vector(13.7, 6.7, 0)),  # 10
    Part.LineSegment(Vector(13.7, 6.7, 0), Vector(6.2, 14.2, 0)),  # 11
    Part.LineSegment(Vector(6.2, 14.2, 0), Vector(6.2, 68.2, 0)),  # 12
    Part.LineSegment(Vector(6.2, 68.2, 0), Vector(-8, 68.2, 0)),  # 13
    Part.LineSegment(Vector(13.4, 82.8, 0), Vector(-20, 82.8, 0)),  # 14
    Part.LineSegment(Vector(-20, 82.8, 0), Vector(-20, 80.8, 0)),  # 15
    Part.LineSegment(Vector(-20, 80.8, 0), Vector(12.6, 80.8, 0)),  # 16
    Part.LineSegment(Vector(12.6, 80.8, 0), Vector(21.4, 72.1, 0)),  # 17
    Part.LineSegment(Vector(21.4, 72.1, 0), Vector(21.4, -94.7, 0)),  # 18
    Part.LineSegment(Vector(21.4, -94.7, 0), Vector(9.2, -106.8, 0)),  # 19
    Part.LineSegment(Vector(9.2, -106.8, 0), Vector(-20, -106.8, 0)),  # 20
    Part.LineSegment(Vector(-20, -106.8, 0), Vector(-20, -108.8, 0)),  # 21
    Part.LineSegment(Vector(-20, -108.8, 0), Vector(10, -108.8, 0)),  # 22
    Part.LineSegment(Vector(10, -108.8, 0), Vector(23.4, -95.5, 0)),  # 23
    Part.LineSegment(Vector(23.4, -95.5, 0), Vector(23.4, 72.9, 0)),  # 24
    Part.LineSegment(Vector(23.4, 72.9, 0), Vector(13.4, 82.8, 0)),  # 25
], False)
sketch12.addConstraint([
    Sketcher.Constraint("Coincident", 0, 2, 1, 1),
    Sketcher.Constraint("Coincident", 1, 2, 2, 1),
    Sketcher.Constraint("Coincident", 2, 2, 3, 1),
    Sketcher.Constraint("Coincident", 3, 2, 4, 1),
    Sketcher.Constraint("Coincident", 4, 2, 5, 1),
    Sketcher.Constraint("Coincident", 5, 2, 6, 1),
    Sketcher.Constraint("Coincident", 6, 2, 7, 1),
    Sketcher.Constraint("Coincident", 7, 2, 8, 1),
    Sketcher.Constraint("Coincident", 8, 2, 9, 1),
    Sketcher.Constraint("Coincident", 9, 2, 10, 1),
    Sketcher.Constraint("Coincident", 10, 2, 11, 1),
    Sketcher.Constraint("Coincident", 11, 2, 12, 1),
    Sketcher.Constraint("Coincident", 12, 2, 13, 1),
    Sketcher.Constraint("Coincident", 13, 2, 0, 1),
    Sketcher.Constraint("Coincident", 14, 2, 15, 1),
    Sketcher.Constraint("Coincident", 15, 2, 16, 1),
    Sketcher.Constraint("Coincident", 16, 2, 17, 1),
    Sketcher.Constraint("Coincident", 17, 2, 18, 1),
    Sketcher.Constraint("Coincident", 18, 2, 19, 1),
    Sketcher.Constraint("Coincident", 19, 2, 20, 1),
    Sketcher.Constraint("Coincident", 20, 2, 21, 1),
    Sketcher.Constraint("Coincident", 21, 2, 22, 1),
    Sketcher.Constraint("Coincident", 22, 2, 23, 1),
    Sketcher.Constraint("Coincident", 23, 2, 24, 1),
    Sketcher.Constraint("Coincident", 24, 2, 25, 1),
    Sketcher.Constraint("Coincident", 25, 2, 14, 1),
    Sketcher.Constraint("Vertical", 0),
    Sketcher.Constraint("Horizontal", 1),
    Sketcher.Constraint("Vertical", 2),
    Sketcher.Constraint("Vertical", 4),
    Sketcher.Constraint("Horizontal", 6),
    Sketcher.Constraint("Vertical", 7),
    Sketcher.Constraint("Horizontal", 8),
    Sketcher.Constraint("Vertical", 10),
    Sketcher.Constraint("Vertical", 12),
    Sketcher.Constraint("Horizontal", 13),
    Sketcher.Constraint("Horizontal", 14),
    Sketcher.Constraint("Vertical", 15),
    Sketcher.Constraint("Horizontal", 16),
    Sketcher.Constraint("Vertical", 18),
    Sketcher.Constraint("Horizontal", 20),
    Sketcher.Constraint("Vertical", 21),
    Sketcher.Constraint("Horizontal", 22),
    Sketcher.Constraint("Vertical", 24),
    Sketcher.Constraint("Perpendicular", 3, 5),
    Sketcher.Constraint("Parallel", 5, 9),
    Sketcher.Constraint("Perpendicular", 9, 11),
    Sketcher.Constraint("Parallel", 11, 17),
    Sketcher.Constraint("Perpendicular", 17, 19),
    Sketcher.Constraint("Parallel", 19, 23),
    Sketcher.Constraint("Perpendicular", 23, 25),
    Sketcher.Constraint("Vertical", 15, 2, 20, 2),
    Sketcher.Constraint("Equal", 0, 7),
    Sketcher.Constraint("Equal", 7, 15),
    Sketcher.Constraint("Equal", 15, 21),
    Sketcher.Constraint("Equal", 3, 11),
    Sketcher.Constraint("DistanceY", 0, 2, 0, 1, Q("2 mm")),
    Sketcher.Constraint("Angle", 3, Q("-45 deg")),
    Sketcher.Constraint("DistanceX", 0, 2, -1, 1, Q("8 mm")),
    Sketcher.Constraint("DistanceX", 6, 2, -1, 1, Q("15 mm")),
    Sketcher.Constraint("DistanceX", 14, 2, -1, 1, Q("20 mm")),
    Sketcher.Constraint("DistanceX", 4, 2, 9, 2, Q("2 mm")),
    Sketcher.Constraint("DistanceX", 18, 2, 23, 2, Q("2 mm")),
    Sketcher.Constraint("DistanceX", 1, 1, 1, 2, Q("12.15 mm")),
    Sketcher.Constraint("DistanceX", 2, 2, 3, 2, Q("7.5 mm")),
    Sketcher.Constraint("DistanceY", 5, 2, 1, 2, Q("161.3 mm")),
    Sketcher.Constraint("DistanceY", 13, 2, 14, 2, Q("14.7 mm")),
    Sketcher.Constraint("DistanceX", 12, 2, 17, 2, Q("15.2 mm")),
    Sketcher.Constraint("DistanceY", 19, 2, 8, 2, Q("9.7 mm")),
    Sketcher.Constraint("DistanceY", -1, 1, 0, 2, Q("66.15 mm")),
    Sketcher.Constraint("DistanceX", 16, 1, 16, 2, Q("32.584608 mm")),
    Sketcher.Constraint("DistanceX", 20, 2, 20, 1, Q("29.201868 mm")),
    Sketcher.Constraint("DistanceY", 4, 2, 4, 1, Q("93.028758 mm")),
    Sketcher.Constraint("DistanceY", 12, 1, 12, 2, Q("53.93434 mm")),
    Sketcher.Constraint("DistanceY", 24, 1, 24, 2, Q("168.443331 mm")),
    Sketcher.Constraint("Distance", 25, Q("14.05299 mm")),
    Sketcher.Constraint("DistanceX", 6, 2, 6, 1, Q("18.641525 mm")),
    Sketcher.Constraint("DistanceX", 8, 1, 8, 2, Q("19.469952 mm")),
])
pad6 = body.newObject("PartDesign::Pad", "Pad005")
pad6.Profile = sketch12
pad6.Length = 6.5

# Sketch on YZ plane
sketch13 = body.newObject("Sketcher::SketchObject", "Sketch012")
sketch13.AttachmentSupport = (doc.getObject("YZ_Plane"), [""])
sketch13.MapMode = "FlatFace"
sketch13.AttachmentOffset = App.Placement(Vector(0, 0, 6), App.Rotation())
sketch13.addGeometry([
    Part.LineSegment(Vector(-20, 83, 0), Vector(-20, 82.85, 0)),  # 0
    Part.LineSegment(Vector(-20, 82.85, 0), Vector(13.41, 82.85, 0)),  # 1
    Part.LineSegment(Vector(13.41, 82.85, 0), Vector(23.35, 72.91, 0)),  # 2
    Part.LineSegment(Vector(23.35, 72.91, 0), Vector(23.35, -95.53, 0)),  # 3
    Part.LineSegment(Vector(23.35, -95.53, 0), Vector(10.03, -108.85, 0)),  # 4
    Part.LineSegment(Vector(10.03, -108.85, 0), Vector(-20, -108.85, 0)),  # 5
    Part.LineSegment(Vector(-20, -108.85, 0), Vector(-20, -109, 0)),  # 6
    Part.LineSegment(Vector(-20, -109, 0), Vector(10.09, -109, 0)),  # 7
    Part.LineSegment(Vector(10.09, -109, 0), Vector(23.5, -95.59, 0)),  # 8
    Part.LineSegment(Vector(23.5, -95.59, 0), Vector(23.5, 72.98, 0)),  # 9
    Part.LineSegment(Vector(23.5, 72.98, 0), Vector(13.48, 83, 0)),  # 10
    Part.LineSegment(Vector(13.48, 83, 0), Vector(-20, 83, 0)),  # 11
    Part.LineSegment(Vector(-8, 66.15, 0), Vector(-8, 66, 0)),  # 12
    Part.LineSegment(Vector(-8, 66, 0), Vector(4, 66, 0)),  # 13
    Part.LineSegment(Vector(4, 66, 0), Vector(4, 13.33, 0)),  # 14
    Part.LineSegment(Vector(4, 13.33, 0), Vector(11.5, 5.83, 0)),  # 15
    Part.LineSegment(Vector(11.5, 5.83, 0), Vector(11.5, -87.08, 0)),  # 16
    Part.LineSegment(Vector(11.5, -87.08, 0), Vector(3.58, -95, 0)),  # 17
    Part.LineSegment(Vector(3.58, -95, 0), Vector(-15, -95, 0)),  # 18
    Part.LineSegment(Vector(-15, -95, 0), Vector(-15, -95.15, 0)),  # 19
    Part.LineSegment(Vector(-15, -95.15, 0), Vector(3.64, -95.15, 0)),  # 20
    Part.LineSegment(Vector(3.64, -95.15, 0), Vector(11.65, -87.14, 0)),  # 21
    Part.LineSegment(Vector(11.65, -87.14, 0), Vector(11.65, 5.89, 0)),  # 22
    Part.LineSegment(Vector(11.65, 5.89, 0), Vector(4.15, 13.39, 0)),  # 23
    Part.LineSegment(Vector(4.15, 13.39, 0), Vector(4.15, 66.15, 0)),  # 24
    Part.LineSegment(Vector(4.15, 66.15, 0), Vector(-8, 66.15, 0)),  # 25
], False)
sketch13.addConstraint([
    Sketcher.Constraint("Coincident", 0, 2, 1, 1),
    Sketcher.Constraint("Coincident", 1, 2, 2, 1),
    Sketcher.Constraint("Coincident", 2, 2, 3, 1),
    Sketcher.Constraint("Coincident", 3, 2, 4, 1),
    Sketcher.Constraint("Coincident", 4, 2, 5, 1),
    Sketcher.Constraint("Coincident", 5, 2, 6, 1),
    Sketcher.Constraint("Coincident", 6, 2, 7, 1),
    Sketcher.Constraint("Coincident", 7, 2, 8, 1),
    Sketcher.Constraint("Coincident", 8, 2, 9, 1),
    Sketcher.Constraint("Coincident", 9, 2, 10, 1),
    Sketcher.Constraint("Coincident", 10, 2, 11, 1),
    Sketcher.Constraint("Coincident", 11, 2, 0, 1),
    Sketcher.Constraint("Coincident", 12, 2, 13, 1),
    Sketcher.Constraint("Coincident", 13, 2, 14, 1),
    Sketcher.Constraint("Coincident", 14, 2, 15, 1),
    Sketcher.Constraint("Coincident", 15, 2, 16, 1),
    Sketcher.Constraint("Coincident", 16, 2, 17, 1),
    Sketcher.Constraint("Coincident", 17, 2, 18, 1),
    Sketcher.Constraint("Coincident", 18, 2, 19, 1),
    Sketcher.Constraint("Coincident", 19, 2, 20, 1),
    Sketcher.Constraint("Coincident", 20, 2, 21, 1),
    Sketcher.Constraint("Coincident", 21, 2, 22, 1),
    Sketcher.Constraint("Coincident", 22, 2, 23, 1),
    Sketcher.Constraint("Coincident", 23, 2, 24, 1),
    Sketcher.Constraint("Coincident", 24, 2, 25, 1),
    Sketcher.Constraint("Coincident", 25, 2, 12, 1),
    Sketcher.Constraint("Vertical", 0),
    Sketcher.Constraint("Horizontal", 1),
    Sketcher.Constraint("Vertical", 3),
    Sketcher.Constraint("Horizontal", 5),
    Sketcher.Constraint("Vertical", 6),
    Sketcher.Constraint("Horizontal", 7),
    Sketcher.Constraint("Vertical", 9),
    Sketcher.Constraint("Horizontal", 11),
    Sketcher.Constraint("Vertical", 12),
    Sketcher.Constraint("Horizontal", 13),
    Sketcher.Constraint("Vertical", 14),
    Sketcher.Constraint("Vertical", 16),
    Sketcher.Constraint("Horizontal", 18),
    Sketcher.Constraint("Vertical", 19),
    Sketcher.Constraint("Horizontal", 20),
    Sketcher.Constraint("Vertical", 22),
    Sketcher.Constraint("Vertical", 24),
    Sketcher.Constraint("Horizontal", 25),
    Sketcher.Constraint("Perpendicular", 2, 4),
    Sketcher.Constraint("Parallel", 4, 8),
    Sketcher.Constraint("Perpendicular", 8, 10),
    Sketcher.Constraint("Parallel", 10, 15),
    Sketcher.Constraint("Perpendicular", 15, 17),
    Sketcher.Constraint("Parallel", 17, 21),
    Sketcher.Constraint("Perpendicular", 21, 23),
    Sketcher.Constraint("Vertical", 0, 2, 5, 2),
    Sketcher.Constraint("Equal", 0, 6),
    Sketcher.Constraint("Equal", 6, 12),
    Sketcher.Constraint("Equal", 12, 19),
    Sketcher.Constraint("Equal", 15, 23),
    Sketcher.Constraint("DistanceX", 13, 1, 13, 2, Q("12 mm")),
    Sketcher.Constraint("Angle", 2, Q("-45 deg")),
    Sketcher.Constraint("DistanceX", 0, 2, -1, 1, Q("20 mm")),
    Sketcher.Constraint("DistanceY", 6, 2, -1, 1, Q("109 mm")),
    Sketcher.Constraint("DistanceY", -1, 1, 10, 2, Q("83 mm")),
    Sketcher.Constraint("DistanceX", 12, 2, -1, 1, Q("8 mm")),
    Sketcher.Constraint("DistanceY", -1, 1, 12, 2, Q("66 mm")),
    Sketcher.Constraint("DistanceY", 17, 2, -1, 1, Q("95 mm")),
    Sketcher.Constraint("DistanceX", 18, 2, -1, 1, Q("15 mm")),
    Sketcher.Constraint("DistanceX", 15, 2, 9, 2, Q("12 mm")),
    Sketcher.Constraint("DistanceX", 25, 2, 25, 1, Q("12.15 mm")),
    Sketcher.Constraint("DistanceY", 0, 2, 0, 1, Q("0.15 mm")),
    Sketcher.Constraint("DistanceX", -1, 1, 8, 2, Q("23.5 mm")),
    Sketcher.Constraint("DistanceX", 21, 2, 3, 2, Q("11.7 mm")),
    Sketcher.Constraint("DistanceY", 14, 2, 14, 1, Q("52.674899 mm")),
    Sketcher.Constraint("DistanceY", 3, 2, 3, 1, Q("168.443331 mm")),
    Sketcher.Constraint("DistanceY", 22, 1, 22, 2, Q("93.028758 mm")),
    Sketcher.Constraint("Distance", 2, Q("14.05299 mm")),
    Sketcher.Constraint("Distance", 8, Q("18.961171 mm")),
    Sketcher.Constraint("Distance", 17, Q("11.20143 mm")),
    Sketcher.Constraint("DistanceX", 11, 2, 11, 1, Q("33.475167 mm")),
    Sketcher.Constraint("DistanceX", 20, 1, 20, 2, Q("18.641525 mm")),
])
pad7 = body.newObject("PartDesign::Pad", "Pad006")
pad7.Profile = sketch13
pad7.Length = 3.5

# Sketch on YZ plane
sketch14 = body.newObject("Sketcher::SketchObject", "Sketch013")
sketch14.AttachmentSupport = (doc.getObject("YZ_Plane"), [""])
sketch14.MapMode = "FlatFace"
sketch14.AttachmentOffset = App.Placement(Vector(0, 0, 4), App.Rotation())
sketch14.addGeometry([
    Part.Circle(Vector(16, -91, 0), Vector(0, 0, 1), 6),
    Part.Circle(Vector(16, -39, 0), Vector(0, 0, 1), 6),
    Part.Circle(Vector(16, 64, 0), Vector(0, 0, 1), 6),
    Part.Circle(Vector(16, 12, 0), Vector(0, 0, 1), 6),
], False)
sketch14.addConstraint([
    Sketcher.Constraint("Equal", 0, 1),
    Sketcher.Constraint("Equal", 1, 2),
    Sketcher.Constraint("Equal", 2, 3),
    Sketcher.Constraint("Vertical", 0, 3, 1, 3),
    Sketcher.Constraint("Vertical", 1, 3, 2, 3),
    Sketcher.Constraint("Vertical", 2, 3, 3, 3),
    Sketcher.Constraint("Diameter", 0, Q("13 mm")),
    Sketcher.Constraint("DistanceX", -1, 1, 0, 3, Q("16 mm")),
    Sketcher.Constraint("DistanceY", 0, 3, -1, 1, Q("91 mm")),
    Sketcher.Constraint("DistanceY", -1, 1, 2, 3, Q("64 mm")),
    Sketcher.Constraint("DistanceY", 1, 3, -1, 1, Q("39.333333 mm")),
    Sketcher.Constraint("DistanceY", -1, 1, 3, 3, Q("12.333333 mm")),
])
pocket7 = body.newObject("PartDesign::Pocket", "Pocket006")
pocket7.Profile = sketch14
pocket7.Type = "ThroughAll"
pocket7.Reversed = True

doc.recompute()
